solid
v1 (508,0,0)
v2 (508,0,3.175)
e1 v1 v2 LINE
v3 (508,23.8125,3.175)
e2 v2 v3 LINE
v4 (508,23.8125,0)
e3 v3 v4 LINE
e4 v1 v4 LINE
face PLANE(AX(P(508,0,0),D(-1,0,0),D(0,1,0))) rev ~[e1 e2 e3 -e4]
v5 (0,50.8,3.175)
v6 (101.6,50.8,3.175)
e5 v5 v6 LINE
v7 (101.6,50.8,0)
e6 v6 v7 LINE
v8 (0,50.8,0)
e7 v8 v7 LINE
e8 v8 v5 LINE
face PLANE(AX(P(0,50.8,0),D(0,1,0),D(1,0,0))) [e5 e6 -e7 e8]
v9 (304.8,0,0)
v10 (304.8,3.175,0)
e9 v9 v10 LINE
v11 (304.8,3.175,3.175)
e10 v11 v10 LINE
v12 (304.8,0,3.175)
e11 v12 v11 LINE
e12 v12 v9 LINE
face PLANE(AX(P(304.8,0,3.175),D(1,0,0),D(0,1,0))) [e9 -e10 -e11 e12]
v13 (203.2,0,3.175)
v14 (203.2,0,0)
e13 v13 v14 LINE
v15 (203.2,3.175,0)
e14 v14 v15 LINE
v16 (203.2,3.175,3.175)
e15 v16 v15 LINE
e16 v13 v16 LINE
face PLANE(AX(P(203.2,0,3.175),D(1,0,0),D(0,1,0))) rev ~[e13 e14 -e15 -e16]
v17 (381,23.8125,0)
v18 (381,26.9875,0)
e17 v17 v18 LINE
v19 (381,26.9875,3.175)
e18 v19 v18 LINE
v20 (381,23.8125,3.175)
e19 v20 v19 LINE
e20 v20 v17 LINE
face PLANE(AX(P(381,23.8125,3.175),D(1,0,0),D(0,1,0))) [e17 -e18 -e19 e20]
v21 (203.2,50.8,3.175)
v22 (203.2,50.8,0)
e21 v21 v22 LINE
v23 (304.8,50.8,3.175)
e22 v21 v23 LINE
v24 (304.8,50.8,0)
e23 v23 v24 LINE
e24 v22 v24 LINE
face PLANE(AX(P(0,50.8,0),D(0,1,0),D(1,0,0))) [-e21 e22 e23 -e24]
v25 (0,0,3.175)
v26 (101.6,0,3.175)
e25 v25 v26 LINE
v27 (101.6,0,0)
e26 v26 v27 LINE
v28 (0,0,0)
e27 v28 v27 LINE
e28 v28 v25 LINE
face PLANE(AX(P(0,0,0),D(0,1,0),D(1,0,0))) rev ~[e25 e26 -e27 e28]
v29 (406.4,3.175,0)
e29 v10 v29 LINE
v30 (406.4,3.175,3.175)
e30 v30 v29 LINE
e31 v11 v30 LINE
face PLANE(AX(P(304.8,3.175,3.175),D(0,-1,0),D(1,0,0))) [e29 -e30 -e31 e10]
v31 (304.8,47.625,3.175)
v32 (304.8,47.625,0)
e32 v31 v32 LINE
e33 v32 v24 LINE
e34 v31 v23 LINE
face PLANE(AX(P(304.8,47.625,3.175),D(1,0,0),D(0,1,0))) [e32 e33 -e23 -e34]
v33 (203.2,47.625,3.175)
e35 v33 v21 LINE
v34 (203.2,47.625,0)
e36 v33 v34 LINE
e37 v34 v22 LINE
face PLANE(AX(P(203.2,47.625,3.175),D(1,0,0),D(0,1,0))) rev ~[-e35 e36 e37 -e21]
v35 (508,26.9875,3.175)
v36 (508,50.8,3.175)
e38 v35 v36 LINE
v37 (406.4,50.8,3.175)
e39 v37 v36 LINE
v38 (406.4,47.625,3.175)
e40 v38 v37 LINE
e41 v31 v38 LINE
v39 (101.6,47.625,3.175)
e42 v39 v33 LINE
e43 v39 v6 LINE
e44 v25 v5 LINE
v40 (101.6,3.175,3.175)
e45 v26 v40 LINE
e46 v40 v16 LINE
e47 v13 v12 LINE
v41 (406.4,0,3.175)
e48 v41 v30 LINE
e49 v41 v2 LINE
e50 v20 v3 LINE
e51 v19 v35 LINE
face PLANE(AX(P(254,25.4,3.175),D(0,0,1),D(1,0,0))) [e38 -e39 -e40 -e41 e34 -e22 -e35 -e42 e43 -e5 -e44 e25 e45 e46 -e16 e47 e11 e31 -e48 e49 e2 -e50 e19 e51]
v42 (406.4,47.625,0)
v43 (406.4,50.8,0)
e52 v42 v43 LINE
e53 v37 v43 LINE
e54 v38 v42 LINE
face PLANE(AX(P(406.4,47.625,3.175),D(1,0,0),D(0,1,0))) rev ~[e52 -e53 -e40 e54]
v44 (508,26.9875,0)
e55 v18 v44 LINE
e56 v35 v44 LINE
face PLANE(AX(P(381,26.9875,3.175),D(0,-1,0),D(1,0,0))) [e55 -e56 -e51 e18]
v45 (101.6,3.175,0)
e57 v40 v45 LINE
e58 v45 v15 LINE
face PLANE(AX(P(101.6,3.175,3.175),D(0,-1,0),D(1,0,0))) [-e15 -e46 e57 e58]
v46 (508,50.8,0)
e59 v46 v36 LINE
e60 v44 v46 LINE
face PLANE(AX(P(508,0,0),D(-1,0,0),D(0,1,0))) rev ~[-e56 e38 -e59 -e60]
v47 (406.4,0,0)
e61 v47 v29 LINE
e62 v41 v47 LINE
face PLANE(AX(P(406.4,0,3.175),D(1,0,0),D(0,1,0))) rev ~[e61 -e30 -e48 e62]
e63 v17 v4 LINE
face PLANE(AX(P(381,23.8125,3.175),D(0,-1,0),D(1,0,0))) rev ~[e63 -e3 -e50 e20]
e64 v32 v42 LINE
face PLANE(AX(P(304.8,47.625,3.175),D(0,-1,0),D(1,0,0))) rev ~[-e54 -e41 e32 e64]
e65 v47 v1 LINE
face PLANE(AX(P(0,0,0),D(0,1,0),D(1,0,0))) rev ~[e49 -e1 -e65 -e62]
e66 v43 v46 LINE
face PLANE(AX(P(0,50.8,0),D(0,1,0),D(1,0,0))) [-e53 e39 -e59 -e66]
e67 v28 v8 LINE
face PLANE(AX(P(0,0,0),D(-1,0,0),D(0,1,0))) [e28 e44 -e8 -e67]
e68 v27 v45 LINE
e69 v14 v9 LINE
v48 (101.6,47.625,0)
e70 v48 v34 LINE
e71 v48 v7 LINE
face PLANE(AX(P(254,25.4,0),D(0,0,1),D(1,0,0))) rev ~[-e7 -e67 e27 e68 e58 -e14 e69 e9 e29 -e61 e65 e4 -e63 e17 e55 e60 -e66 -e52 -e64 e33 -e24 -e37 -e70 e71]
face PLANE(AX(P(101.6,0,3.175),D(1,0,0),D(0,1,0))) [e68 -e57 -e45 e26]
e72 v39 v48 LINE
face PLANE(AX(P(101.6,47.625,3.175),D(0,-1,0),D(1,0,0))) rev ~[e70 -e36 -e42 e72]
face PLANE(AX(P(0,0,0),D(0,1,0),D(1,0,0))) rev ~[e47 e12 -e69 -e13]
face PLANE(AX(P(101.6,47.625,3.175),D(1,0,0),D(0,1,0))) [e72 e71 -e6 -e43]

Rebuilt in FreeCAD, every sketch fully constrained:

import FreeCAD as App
import Part
import Sketcher

V = App.Vector
Q = App.Units.Quantity

doc = App.newDocument("Part")
body = doc.addObject("PartDesign::Body", "Body")

sketch1 = body.newObject("Sketcher::SketchObject", "Sketch")
sketch1.AttachmentSupport = (doc.getObject("XY_Plane"), [""])
sketch1.MapMode = "FlatFace"
sketch1.addGeometry([
    Part.LineSegment(V(0, 51, 0), V(0, 0, 0)),
    Part.LineSegment(V(0, 0, 0), V(508, 0, 0)),
    Part.LineSegment(V(508, 0, 0), V(508, 51, 0)),
    Part.LineSegment(V(508, 51, 0), V(0, 51, 0)),
], False)
sketch1.addConstraint([
    Sketcher.Constraint("Coincident", 0, 2, 1, 1),
    Sketcher.Constraint("Coincident", 1, 2, 2, 1),
    Sketcher.Constraint("Coincident", 2, 2, 3, 1),
    Sketcher.Constraint("Coincident", 3, 2, 0, 1),
    Sketcher.Constraint("Vertical", 0),
    Sketcher.Constraint("Horizontal", 1),
    Sketcher.Constraint("Vertical", 2),
    Sketcher.Constraint("Horizontal", 3),
    Sketcher.Constraint("Coincident", 0, 2, -1, 1),
    Sketcher.Constraint("DistanceX", 1, 1, 1, 2, Q("20 in")),
    Sketcher.Constraint("DistanceY", 0, 2, 0, 1, Q("2 in")),
])
pad1 = body.newObject("PartDesign::Pad", "Pad")
pad1.Profile = sketch1
pad1.Length = Q("0.125 in")

sketch2 = body.newObject("Sketcher::SketchObject", "Sketch001")
sketch2.AttachmentSupport = (doc.getObject("XY_Plane"), [""])
sketch2.MapMode = "FlatFace"
sketch2.AttachmentOffset = App.Placement(V(0, 0, 0.125 * 25.4), App.Rotation())
sketch2.addGeometry([
    Part.LineSegment(V(101.6, 3.2, 0), V(101.6, 0, 0)),
    Part.LineSegment(V(101.6, 0, 0), V(203.2, 0, 0)),
    Part.LineSegment(V(203.2, 0, 0), V(203.2, 3.2, 0)),
    Part.LineSegment(V(203.2, 3.2, 0), V(101.6, 3.2, 0)),
    Part.LineSegment(V(304.8, 3.2, 0), V(304.8, 0, 0)),
    Part.LineSegment(V(304.8, 0, 0), V(406.4, 0, 0)),
    Part.LineSegment(V(406.4, 0, 0), V(406.4, 3.2, 0)),
    Part.LineSegment(V(406.4, 3.2, 0), V(304.8, 3.2, 0)),
], False)
sketch2.addConstraint([
    Sketcher.Constraint("Coincident", 0, 2, 1, 1),
    Sketcher.Constraint("Coincident", 1, 2, 2, 1),
    Sketcher.Constraint("Coincident", 2, 2, 3, 1),
    Sketcher.Constraint("Coincident", 3, 2, 0, 1),
    Sketcher.Constraint("Coincident", 4, 2, 5, 1),
    Sketcher.Constraint("Coincident", 5, 2, 6, 1),
    Sketcher.Constraint("Coincident", 6, 2, 7, 1),
    Sketcher.Constraint("Coincident", 7, 2, 4, 1),
    Sketcher.Constraint("Vertical", 0),
    Sketcher.Constraint("Horizontal", 1),
    Sketcher.Constraint("Vertical", 2),
    Sketcher.Constraint("Horizontal", 3),
    Sketcher.Constraint("Vertical", 4),
    Sketcher.Constraint("Horizontal", 5),
    Sketcher.Constraint("Vertical", 6),
    Sketcher.Constraint("Horizontal", 7),
    Sketcher.Constraint("PointOnObject", 0, 2, -1),
    Sketcher.Constraint("PointOnObject", 4, 2, -1),
    Sketcher.Constraint("Horizontal", 3, 2, 6, 2),
    Sketcher.Constraint("Equal", 3, 5),
    Sketcher.Constraint("DistanceX", 1, 1, 1, 2, Q("4 in")),
    Sketcher.Constraint("DistanceX", -1, 1, 0, 2, Q("4 in")),
    Sketcher.Constraint("DistanceX", -1, 1, 4, 2, Q("12 in")),
    Sketcher.Constraint("DistanceY", 0, 2, 0, 1, Q("0.125 in")),
])
pocket1 = body.newObject("PartDesign::Pocket", "Pocket")
pocket1.Profile = sketch2
pocket1.Length = Q("1 in")

sketch3 = body.newObject("Sketcher::SketchObject", "Sketch002")
sketch3.AttachmentSupport = (doc.getObject("XY_Plane"), [""])
sketch3.MapMode = "FlatFace"
sketch3.AttachmentOffset = App.Placement(V(0, 0, 0.125 * 25.4), App.Rotation())
sketch3.addGeometry([
    Part.LineSegment(V(101.6, 50.8, 0), V(101.6, 47.6, 0)),
    Part.LineSegment(V(101.6, 47.6, 0), V(203.2, 47.6, 0)),
    Part.LineSegment(V(203.2, 47.6, 0), V(203.2, 50.8, 0)),
    Part.LineSegment(V(203.2, 50.8, 0), V(101.6, 50.8, 0)),
    Part.LineSegment(V(304.8, 50.8, 0), V(304.8, 47.6, 0)),
    Part.LineSegment(V(304.8, 47.6, 0), V(406.4, 47.6, 0)),
    Part.LineSegment(V(406.4, 47.6, 0), V(406.4, 50.8, 0)),
    Part.LineSegment(V(406.4, 50.8, 0), V(304.8, 50.8, 0)),
], False)
sketch3.addConstraint([
    Sketcher.Constraint("Coincident", 0, 2, 1, 1),
    Sketcher.Constraint("Coincident", 1, 2, 2, 1),
    Sketcher.Constraint("Coincident", 2, 2, 3, 1),
    Sketcher.Constraint("Coincident", 3, 2, 0, 1),
    Sketcher.Constraint("Coincident", 4, 2, 5, 1),
    Sketcher.Constraint("Coincident", 5, 2, 6, 1),
    Sketcher.Constraint("Coincident", 6, 2, 7, 1),
    Sketcher.Constraint("Coincident", 7, 2, 4, 1),
    Sketcher.Constraint("Vertical", 0),
    Sketcher.Constraint("Horizontal", 1),
    Sketcher.Constraint("Vertical", 2),
    Sketcher.Constraint("Horizontal", 3),
    Sketcher.Constraint("Vertical", 4),
    Sketcher.Constraint("Horizontal", 5),
    Sketcher.Constraint("Vertical", 6),
    Sketcher.Constraint("Horizontal", 7),
    Sketcher.Constraint("Horizontal", 1, 2, 4, 2),
    Sketcher.Constraint("Horizontal", 3, 2, 6, 2),
    Sketcher.Constraint("Equal", 3, 5),
    Sketcher.Constraint("DistanceX", 1, 1, 1, 2, Q("4 in")),
    Sketcher.Constraint("DistanceX", -1, 1, 0, 2, Q("4 in")),
    Sketcher.Constraint("DistanceY", -1, 1, 2, 2, Q("2 in")),
    Sketcher.Constraint("DistanceX", -1, 1, 4, 2, Q("12 in")),
    Sketcher.Constraint("DistanceY", 0, 2, 0, 1, Q("0.125 in")),
])
pocket2 = body.newObject("PartDesign::Pocket", "Pocket001")
pocket2.Profile = sketch3
pocket2.Length = Q("1 in")

sketch4 = body.newObject("Sketcher::SketchObject", "Sketch003")
sketch4.AttachmentSupport = (doc.getObject("XY_Plane"), [""])
sketch4.MapMode = "FlatFace"
sketch4.AttachmentOffset = App.Placement(V(0, 0, 0.125 * 25.4), App.Rotation())
sketch4.addGeometry([
    Part.LineSegment(V(381, 27, 0), V(381, 23.8, 0)),
    Part.LineSegment(V(381, 23.8, 0), V(508, 23.8, 0)),
    Part.LineSegment(V(508, 23.8, 0), V(508, 27, 0)),
    Part.LineSegment(V(508, 27, 0), V(381, 27, 0)),
], False)
sketch4.addConstraint([
    Sketcher.Constraint("Coincident", 0, 2, 1, 1),
    Sketcher.Constraint("Coincident", 1, 2, 2, 1),
    Sketcher.Constraint("Coincident", 2, 2, 3, 1),
    Sketcher.Constraint("Coincident", 3, 2, 0, 1),
    Sketcher.Constraint("Vertical", 0),
    Sketcher.Constraint("Horizontal", 1),
    Sketcher.Constraint("Vertical", 2),
    Sketcher.Constraint("Horizontal", 3),
    Sketcher.Constraint("DistanceX", 1, 1, 1, 2, Q("5 in")),
    Sketcher.Constraint("DistanceX", -1, 1, 0, 2, Q("15 in")),
    Sketcher.Constraint("DistanceY", 0, 2, 0, 1, Q("0.125 in")),
    Sketcher.Constraint("DistanceY", -1, 1, 0, 2, Q("0.9375 in")),
])
pocket3 = body.newObject("PartDesign::Pocket", "Pocket002")
pocket3.Profile = sketch4
pocket3.Length = Q("1 in")

doc.recompute()
